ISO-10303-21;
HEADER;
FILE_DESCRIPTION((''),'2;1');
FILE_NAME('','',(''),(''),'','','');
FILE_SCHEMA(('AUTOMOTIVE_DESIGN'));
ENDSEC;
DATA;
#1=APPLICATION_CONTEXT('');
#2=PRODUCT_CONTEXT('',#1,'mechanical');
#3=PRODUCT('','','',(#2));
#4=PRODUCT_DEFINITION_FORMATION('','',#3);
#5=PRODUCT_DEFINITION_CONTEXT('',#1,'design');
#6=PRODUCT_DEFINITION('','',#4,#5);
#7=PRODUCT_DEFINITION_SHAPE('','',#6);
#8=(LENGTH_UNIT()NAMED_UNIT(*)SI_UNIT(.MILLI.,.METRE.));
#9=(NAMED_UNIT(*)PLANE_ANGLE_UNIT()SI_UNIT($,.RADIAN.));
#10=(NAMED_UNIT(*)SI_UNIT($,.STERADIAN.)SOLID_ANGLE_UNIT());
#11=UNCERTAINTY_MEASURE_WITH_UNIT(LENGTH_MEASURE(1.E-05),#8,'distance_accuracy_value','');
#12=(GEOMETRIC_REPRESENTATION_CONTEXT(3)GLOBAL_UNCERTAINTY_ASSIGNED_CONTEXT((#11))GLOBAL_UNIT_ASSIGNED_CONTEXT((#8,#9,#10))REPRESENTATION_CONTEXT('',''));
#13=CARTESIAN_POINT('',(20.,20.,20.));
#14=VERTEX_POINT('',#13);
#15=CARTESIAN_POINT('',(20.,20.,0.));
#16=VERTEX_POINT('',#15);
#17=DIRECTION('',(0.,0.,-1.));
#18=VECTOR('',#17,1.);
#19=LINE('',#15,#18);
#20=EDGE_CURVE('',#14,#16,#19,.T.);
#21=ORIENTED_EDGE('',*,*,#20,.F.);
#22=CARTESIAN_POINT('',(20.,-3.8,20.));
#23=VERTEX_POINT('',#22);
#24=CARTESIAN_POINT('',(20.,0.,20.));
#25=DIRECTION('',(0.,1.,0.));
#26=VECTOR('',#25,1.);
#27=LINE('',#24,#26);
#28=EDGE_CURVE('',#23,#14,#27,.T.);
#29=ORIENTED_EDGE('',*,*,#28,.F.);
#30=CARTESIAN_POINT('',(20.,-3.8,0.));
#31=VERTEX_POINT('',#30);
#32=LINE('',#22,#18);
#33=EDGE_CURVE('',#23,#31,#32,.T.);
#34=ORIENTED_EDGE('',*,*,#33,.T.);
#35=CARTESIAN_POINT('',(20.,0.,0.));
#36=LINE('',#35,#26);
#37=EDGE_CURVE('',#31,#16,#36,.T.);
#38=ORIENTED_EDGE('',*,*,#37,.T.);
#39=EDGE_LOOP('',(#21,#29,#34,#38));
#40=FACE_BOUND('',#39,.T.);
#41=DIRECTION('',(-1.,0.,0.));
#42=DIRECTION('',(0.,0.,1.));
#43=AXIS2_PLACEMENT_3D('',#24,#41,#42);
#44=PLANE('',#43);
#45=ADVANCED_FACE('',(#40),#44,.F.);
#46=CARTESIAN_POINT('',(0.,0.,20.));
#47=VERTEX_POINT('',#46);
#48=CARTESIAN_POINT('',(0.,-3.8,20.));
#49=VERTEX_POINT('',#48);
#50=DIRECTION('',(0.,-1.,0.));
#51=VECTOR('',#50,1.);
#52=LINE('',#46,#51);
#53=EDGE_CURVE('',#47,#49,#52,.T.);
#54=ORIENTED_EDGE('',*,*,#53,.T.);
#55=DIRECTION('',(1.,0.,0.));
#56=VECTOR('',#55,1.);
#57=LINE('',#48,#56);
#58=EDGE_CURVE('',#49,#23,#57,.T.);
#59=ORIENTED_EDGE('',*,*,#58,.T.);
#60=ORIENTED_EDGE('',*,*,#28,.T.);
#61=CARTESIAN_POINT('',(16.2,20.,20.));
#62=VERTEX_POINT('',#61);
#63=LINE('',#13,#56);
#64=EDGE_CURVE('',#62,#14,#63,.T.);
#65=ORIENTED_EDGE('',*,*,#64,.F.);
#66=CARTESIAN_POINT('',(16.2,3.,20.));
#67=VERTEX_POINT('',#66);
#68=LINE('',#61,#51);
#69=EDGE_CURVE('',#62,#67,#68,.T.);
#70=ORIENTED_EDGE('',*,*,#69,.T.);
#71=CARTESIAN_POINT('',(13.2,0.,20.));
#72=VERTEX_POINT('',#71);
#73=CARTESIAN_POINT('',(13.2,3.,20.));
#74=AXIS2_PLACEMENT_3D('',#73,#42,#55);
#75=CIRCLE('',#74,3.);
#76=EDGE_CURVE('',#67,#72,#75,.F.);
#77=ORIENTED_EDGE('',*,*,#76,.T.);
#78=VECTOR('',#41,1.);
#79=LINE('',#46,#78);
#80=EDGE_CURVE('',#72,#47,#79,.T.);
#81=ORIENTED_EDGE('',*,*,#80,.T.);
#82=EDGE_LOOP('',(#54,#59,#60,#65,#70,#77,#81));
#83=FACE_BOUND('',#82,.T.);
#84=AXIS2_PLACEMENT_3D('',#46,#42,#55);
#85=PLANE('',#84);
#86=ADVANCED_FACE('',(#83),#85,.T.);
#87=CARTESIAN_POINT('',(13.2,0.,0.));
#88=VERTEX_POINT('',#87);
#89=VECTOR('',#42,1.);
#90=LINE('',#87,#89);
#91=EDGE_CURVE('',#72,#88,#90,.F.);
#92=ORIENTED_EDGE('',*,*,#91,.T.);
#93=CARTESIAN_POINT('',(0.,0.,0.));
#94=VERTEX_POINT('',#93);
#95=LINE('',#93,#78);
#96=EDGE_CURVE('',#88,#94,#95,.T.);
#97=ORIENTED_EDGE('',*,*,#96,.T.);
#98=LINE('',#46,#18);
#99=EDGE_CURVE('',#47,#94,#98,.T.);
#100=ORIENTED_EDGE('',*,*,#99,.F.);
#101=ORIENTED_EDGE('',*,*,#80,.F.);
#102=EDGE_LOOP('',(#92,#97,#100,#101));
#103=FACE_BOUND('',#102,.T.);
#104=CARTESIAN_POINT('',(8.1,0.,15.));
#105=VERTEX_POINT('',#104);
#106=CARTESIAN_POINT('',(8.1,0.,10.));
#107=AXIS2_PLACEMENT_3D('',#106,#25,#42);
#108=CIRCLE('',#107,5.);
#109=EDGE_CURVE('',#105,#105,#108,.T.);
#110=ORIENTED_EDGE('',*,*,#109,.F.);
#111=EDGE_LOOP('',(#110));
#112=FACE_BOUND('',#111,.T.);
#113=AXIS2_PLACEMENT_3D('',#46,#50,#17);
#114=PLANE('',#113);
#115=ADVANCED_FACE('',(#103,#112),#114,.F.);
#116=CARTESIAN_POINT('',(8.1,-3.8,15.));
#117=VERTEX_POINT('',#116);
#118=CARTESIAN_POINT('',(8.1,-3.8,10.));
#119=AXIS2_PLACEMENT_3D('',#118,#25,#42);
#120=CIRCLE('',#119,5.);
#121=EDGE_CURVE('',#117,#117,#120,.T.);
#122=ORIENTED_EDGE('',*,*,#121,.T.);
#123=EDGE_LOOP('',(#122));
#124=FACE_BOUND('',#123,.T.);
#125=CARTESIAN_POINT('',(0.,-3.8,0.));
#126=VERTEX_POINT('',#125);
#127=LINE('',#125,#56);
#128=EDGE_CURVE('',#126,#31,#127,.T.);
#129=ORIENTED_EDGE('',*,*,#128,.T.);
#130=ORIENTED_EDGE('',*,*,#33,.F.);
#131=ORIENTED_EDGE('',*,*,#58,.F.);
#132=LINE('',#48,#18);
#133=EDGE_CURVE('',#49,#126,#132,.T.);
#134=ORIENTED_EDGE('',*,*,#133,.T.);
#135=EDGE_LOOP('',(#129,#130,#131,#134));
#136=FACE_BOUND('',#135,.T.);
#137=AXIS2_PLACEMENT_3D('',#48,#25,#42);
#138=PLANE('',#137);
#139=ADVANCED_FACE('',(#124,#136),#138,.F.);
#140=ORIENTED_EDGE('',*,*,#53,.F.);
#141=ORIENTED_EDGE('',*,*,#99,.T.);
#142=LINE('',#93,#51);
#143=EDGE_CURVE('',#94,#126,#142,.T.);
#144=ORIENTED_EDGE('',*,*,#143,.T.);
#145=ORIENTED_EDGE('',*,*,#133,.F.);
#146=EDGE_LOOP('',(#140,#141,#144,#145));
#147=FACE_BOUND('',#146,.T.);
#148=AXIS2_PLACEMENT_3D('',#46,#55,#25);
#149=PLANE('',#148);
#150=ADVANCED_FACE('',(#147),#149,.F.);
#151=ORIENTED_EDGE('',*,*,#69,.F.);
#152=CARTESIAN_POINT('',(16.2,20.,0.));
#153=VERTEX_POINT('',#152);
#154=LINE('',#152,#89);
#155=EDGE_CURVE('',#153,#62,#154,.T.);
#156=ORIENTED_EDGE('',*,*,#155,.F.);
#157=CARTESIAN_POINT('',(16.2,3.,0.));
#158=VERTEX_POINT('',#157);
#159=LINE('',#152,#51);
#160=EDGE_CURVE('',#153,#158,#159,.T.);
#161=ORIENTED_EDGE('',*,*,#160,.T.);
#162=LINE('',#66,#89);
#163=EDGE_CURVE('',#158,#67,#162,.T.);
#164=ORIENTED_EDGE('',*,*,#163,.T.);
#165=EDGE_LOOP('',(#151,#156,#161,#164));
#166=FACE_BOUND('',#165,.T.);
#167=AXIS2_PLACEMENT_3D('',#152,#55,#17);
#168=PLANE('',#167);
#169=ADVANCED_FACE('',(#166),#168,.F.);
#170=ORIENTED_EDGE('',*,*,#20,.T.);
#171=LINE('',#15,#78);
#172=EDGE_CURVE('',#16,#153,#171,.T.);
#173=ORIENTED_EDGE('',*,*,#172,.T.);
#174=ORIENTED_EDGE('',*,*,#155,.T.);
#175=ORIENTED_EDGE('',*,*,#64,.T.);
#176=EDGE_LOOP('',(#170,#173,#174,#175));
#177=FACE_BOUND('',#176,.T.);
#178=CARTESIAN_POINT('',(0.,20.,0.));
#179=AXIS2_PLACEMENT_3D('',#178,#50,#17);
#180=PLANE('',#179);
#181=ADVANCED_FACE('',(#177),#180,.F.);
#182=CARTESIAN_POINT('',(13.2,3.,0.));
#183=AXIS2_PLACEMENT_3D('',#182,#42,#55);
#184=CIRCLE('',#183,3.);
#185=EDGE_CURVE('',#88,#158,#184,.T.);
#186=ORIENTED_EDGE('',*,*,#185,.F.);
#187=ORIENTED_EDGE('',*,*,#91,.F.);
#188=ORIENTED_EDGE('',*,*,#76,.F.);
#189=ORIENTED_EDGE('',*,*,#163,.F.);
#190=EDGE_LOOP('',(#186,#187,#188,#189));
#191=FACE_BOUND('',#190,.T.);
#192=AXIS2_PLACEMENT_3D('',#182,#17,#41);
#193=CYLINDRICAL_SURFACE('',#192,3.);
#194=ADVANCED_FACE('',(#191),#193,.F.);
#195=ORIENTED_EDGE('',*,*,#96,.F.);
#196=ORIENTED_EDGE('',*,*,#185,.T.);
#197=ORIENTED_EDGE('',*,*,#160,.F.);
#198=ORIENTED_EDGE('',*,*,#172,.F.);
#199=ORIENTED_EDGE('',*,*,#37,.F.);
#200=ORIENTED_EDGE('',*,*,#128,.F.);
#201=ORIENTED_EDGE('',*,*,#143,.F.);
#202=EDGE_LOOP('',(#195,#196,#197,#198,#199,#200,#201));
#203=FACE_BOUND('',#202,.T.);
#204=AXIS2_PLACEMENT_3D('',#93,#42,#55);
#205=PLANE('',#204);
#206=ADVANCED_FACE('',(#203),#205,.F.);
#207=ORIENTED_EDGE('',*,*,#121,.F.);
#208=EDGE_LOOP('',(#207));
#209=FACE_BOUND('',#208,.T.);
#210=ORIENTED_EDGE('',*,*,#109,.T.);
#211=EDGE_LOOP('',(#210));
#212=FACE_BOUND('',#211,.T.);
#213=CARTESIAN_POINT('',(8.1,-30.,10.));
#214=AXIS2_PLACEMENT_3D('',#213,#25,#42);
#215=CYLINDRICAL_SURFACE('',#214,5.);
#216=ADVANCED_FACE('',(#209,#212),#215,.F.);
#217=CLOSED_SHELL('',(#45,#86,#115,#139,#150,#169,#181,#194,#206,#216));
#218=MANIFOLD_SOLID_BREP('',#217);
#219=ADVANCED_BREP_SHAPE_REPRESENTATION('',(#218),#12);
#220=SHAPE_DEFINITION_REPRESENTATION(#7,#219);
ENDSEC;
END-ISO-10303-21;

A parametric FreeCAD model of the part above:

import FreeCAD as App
import Part
import Sketcher
from FreeCAD import Vector


def edges_at(feature, points):
    """Names of the edges that pass closest to the given points."""
    edges = feature.Shape.Edges
    near = lambda p: min(range(len(edges)), key=lambda i: edges[i].distToShape(Part.Vertex(*p))[0])
    return sorted({f"Edge{near(p) + 1}" for p in points})

doc = App.newDocument("Part")
body = doc.addObject("PartDesign::Body", "Body")

# Sketch on XY plane
sketch1 = body.newObject("Sketcher::SketchObject", "Sketch")
sketch1.AttachmentSupport = (doc.getObject("XY_Plane"), [""])
sketch1.MapMode = "FlatFace"
sketch1.addGeometry(Part.LineSegment(Vector(0, 0, 0), Vector(0, -3.8, 0)), False)
sketch1.addGeometry(Part.LineSegment(Vector(0, -3.8, 0), Vector(20, -3.8, 0)), False)
sketch1.addGeometry(Part.LineSegment(Vector(20, -3.8, 0), Vector(20, 0, 0)), False)
sketch1.addGeometry(Part.LineSegment(Vector(20, 0, 0), Vector(0, 0, 0)), False)
sketch1.addConstraint(Sketcher.Constraint("Coincident", 0, 2, 1, 1))
sketch1.addConstraint(Sketcher.Constraint("Coincident", 1, 2, 2, 1))
sketch1.addConstraint(Sketcher.Constraint("Coincident", 2, 2, 3, 1))
sketch1.addConstraint(Sketcher.Constraint("Coincident", 3, 2, 0, 1))
sketch1.addConstraint(Sketcher.Constraint("Vertical", 0))
sketch1.addConstraint(Sketcher.Constraint("Horizontal", 1))
sketch1.addConstraint(Sketcher.Constraint("Vertical", 2))
sketch1.addConstraint(Sketcher.Constraint("Horizontal", 3))
sketch1.addConstraint(Sketcher.Constraint("Coincident", 3, 2, -1, 1))
sketch1.addConstraint(Sketcher.Constraint("DistanceX", 1, 1, 1, 2, 20.0))
sketch1.addConstraint(Sketcher.Constraint("DistanceY", 0, 2, 0, 1, 3.8))
pad1 = body.newObject("PartDesign::Pad", "Pad")
pad1.Profile = sketch1
pad1.Length = 20

# Sketch on XZ plane
sketch2 = body.newObject("Sketcher::SketchObject", "Sketch001")
sketch2.AttachmentSupport = (doc.getObject("XZ_Plane"), [""])
sketch2.MapMode = "FlatFace"
sketch2.addGeometry(Part.LineSegment(Vector(16.2, 0, 0), Vector(16.2, 20, 0)), False)
sketch2.addGeometry(Part.LineSegment(Vector(16.2, 20, 0), Vector(20, 20, 0)), False)
sketch2.addGeometry(Part.LineSegment(Vector(20, 20, 0), Vector(20, 0, 0)), False)
sketch2.addGeometry(Part.LineSegment(Vector(20, 0, 0), Vector(16.2, 0, 0)), False)
sketch2.addConstraint(Sketcher.Constraint("Coincident", 0, 2, 1, 1))
sketch2.addConstraint(Sketcher.Constraint("Coincident", 1, 2, 2, 1))
sketch2.addConstraint(Sketcher.Constraint("Coincident", 2, 2, 3, 1))
sketch2.addConstraint(Sketcher.Constraint("Coincident", 3, 2, 0, 1))
sketch2.addConstraint(Sketcher.Constraint("Vertical", 0))
sketch2.addConstraint(Sketcher.Constraint("Horizontal", 1))
sketch2.addConstraint(Sketcher.Constraint("Vertical", 2))
sketch2.addConstraint(Sketcher.Constraint("Horizontal", 3))
sketch2.addConstraint(Sketcher.Constraint("PointOnObject", 2, 2, -1))
sketch2.addConstraint(Sketcher.Constraint("DistanceY", 0, 1, 0, 2, 20.0))
sketch2.addConstraint(Sketcher.Constraint("DistanceX", 1, 1, 1, 2, 3.8))
sketch2.addConstraint(Sketcher.Constraint("DistanceX", -1, 1, 1, 2, 20.0))
pad2 = body.newObject("PartDesign::Pad", "Pad001")
pad2.Profile = sketch2
pad2.Length = 20
pad2.Reversed = True

# Sketch on XZ plane
sketch3 = body.newObject("Sketcher::SketchObject", "Sketch002")
sketch3.AttachmentSupport = (doc.getObject("XZ_Plane"), [""])
sketch3.MapMode = "FlatFace"
sketch3.addGeometry(Part.Circle(Vector(8, 10, 0), Vector(0, 0, 1), 5), False)
sketch3.addConstraint(Sketcher.Constraint("Diameter", 0, 10.0))
sketch3.addConstraint(Sketcher.Constraint("DistanceY", -1, 1, 0, 3, 10.0))
sketch3.addConstraint(Sketcher.Constraint("DistanceX", -1, 1, 0, 3, 8.1))
pocket1 = body.newObject("PartDesign::Pocket", "Pocket")
pocket1.Profile = sketch3
pocket1.Length = 30
pocket1.Reversed = True
doc.recompute()

fillet = body.newObject("PartDesign::Fillet", "Fillet")
fillet.Base = (pocket1, edges_at(pocket1, [(16.2, 0, 10)]))
fillet.Radius = 3

doc.recompute()
